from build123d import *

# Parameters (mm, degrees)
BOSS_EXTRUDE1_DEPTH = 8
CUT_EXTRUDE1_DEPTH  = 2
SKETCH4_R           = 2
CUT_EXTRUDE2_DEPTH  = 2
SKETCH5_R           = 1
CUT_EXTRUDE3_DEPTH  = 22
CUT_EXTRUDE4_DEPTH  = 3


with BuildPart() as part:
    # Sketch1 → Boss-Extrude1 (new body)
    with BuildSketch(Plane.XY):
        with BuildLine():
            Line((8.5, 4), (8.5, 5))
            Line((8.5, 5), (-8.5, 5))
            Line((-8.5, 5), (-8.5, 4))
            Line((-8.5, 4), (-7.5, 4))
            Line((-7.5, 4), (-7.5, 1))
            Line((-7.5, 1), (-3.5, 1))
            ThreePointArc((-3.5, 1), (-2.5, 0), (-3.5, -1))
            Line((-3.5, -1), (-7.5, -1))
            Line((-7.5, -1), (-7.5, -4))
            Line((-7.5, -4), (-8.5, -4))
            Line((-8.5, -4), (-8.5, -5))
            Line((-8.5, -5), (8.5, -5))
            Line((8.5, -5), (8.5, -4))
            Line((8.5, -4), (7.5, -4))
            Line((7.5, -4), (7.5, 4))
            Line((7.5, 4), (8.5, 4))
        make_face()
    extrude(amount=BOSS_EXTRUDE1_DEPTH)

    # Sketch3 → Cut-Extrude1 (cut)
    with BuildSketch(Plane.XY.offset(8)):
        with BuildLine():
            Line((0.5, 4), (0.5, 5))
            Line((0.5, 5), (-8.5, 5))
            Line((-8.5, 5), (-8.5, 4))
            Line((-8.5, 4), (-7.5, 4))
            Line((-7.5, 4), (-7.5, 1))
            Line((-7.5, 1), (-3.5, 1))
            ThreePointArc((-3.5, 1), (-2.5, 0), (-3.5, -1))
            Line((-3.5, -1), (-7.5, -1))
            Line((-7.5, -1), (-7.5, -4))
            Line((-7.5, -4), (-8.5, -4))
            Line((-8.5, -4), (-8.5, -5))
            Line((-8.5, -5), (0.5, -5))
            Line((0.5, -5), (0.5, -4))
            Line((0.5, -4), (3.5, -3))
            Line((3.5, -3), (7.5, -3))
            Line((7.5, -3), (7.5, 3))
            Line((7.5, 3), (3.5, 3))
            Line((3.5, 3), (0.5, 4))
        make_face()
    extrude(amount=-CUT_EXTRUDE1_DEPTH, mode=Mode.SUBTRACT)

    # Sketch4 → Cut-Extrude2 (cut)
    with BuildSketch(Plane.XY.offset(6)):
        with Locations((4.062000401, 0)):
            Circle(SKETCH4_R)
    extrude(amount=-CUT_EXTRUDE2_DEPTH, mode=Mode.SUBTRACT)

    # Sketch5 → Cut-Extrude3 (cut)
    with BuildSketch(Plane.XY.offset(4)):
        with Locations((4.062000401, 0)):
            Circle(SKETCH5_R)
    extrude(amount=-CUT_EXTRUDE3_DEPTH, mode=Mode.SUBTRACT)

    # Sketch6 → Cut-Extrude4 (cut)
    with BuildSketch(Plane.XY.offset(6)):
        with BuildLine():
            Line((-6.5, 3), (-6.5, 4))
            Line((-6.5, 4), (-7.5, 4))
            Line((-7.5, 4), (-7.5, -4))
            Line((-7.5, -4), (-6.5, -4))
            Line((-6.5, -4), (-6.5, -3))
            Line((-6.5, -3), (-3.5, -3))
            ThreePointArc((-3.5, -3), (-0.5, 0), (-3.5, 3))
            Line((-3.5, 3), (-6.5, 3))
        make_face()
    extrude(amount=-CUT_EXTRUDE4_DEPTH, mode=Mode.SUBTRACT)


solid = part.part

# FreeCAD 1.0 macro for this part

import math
import FreeCAD as App
import Part
import Sketcher

doc = App.newDocument("Part")
params = doc.addObject("Spreadsheet::Sheet", "Params")
for row, (alias, value) in enumerate([
    ("sketch1_radius", "1 mm"),
    ("sketch1_width", "17 mm"),
    ("sketch1_width2", "1 mm"),
    ("sketch1_width3", "4 mm"),
    ("sketch1_height", "3 mm"),
    ("pad1_length", "8 mm"),
    ("sketch2_radius", "1 mm"),
    ("sketch2_width", "9 mm"),
    ("sketch2_width2", "1 mm"),
    ("sketch2_width3", "4 mm"),
    ("sketch2_height", "3 mm"),
    ("pocket1_length", "2 mm"),
    ("sketch3_diameter", "4 mm"),
    ("pocket2_length", "2 mm"),
    ("sketch4_diameter", "2 mm"),
    ("pocket3_length", "22 mm"),
    ("sketch5_radius", "3 mm"),
    ("sketch5_width", "1 mm"),
    ("sketch5_width2", "3 mm"),
    ("pocket4_length", "3 mm"),
], start=1):
    params.set(f"A{row}", alias)
    params.set(f"B{row}", "=" + value)
    params.setAlias(f"B{row}", alias)

body = doc.addObject("PartDesign::Body", "Body")

# Sketch on XY plane
sketch1 = body.newObject("Sketcher::SketchObject", "Sketch")
sketch1.AttachmentSupport = (doc.getObject("XY_Plane"), [""])
sketch1.MapMode = "FlatFace"
sketch1.addGeometry(Part.LineSegment(App.Vector(8.5, 4, 0), App.Vector(8.5, 5, 0)), False)
sketch1.addGeometry(Part.LineSegment(App.Vector(8.5, 5, 0), App.Vector(-8.5, 5, 0)), False)
sketch1.addGeometry(Part.LineSegment(App.Vector(-8.5, 5, 0), App.Vector(-8.5, 4, 0)), False)
sketch1.addGeometry(Part.LineSegment(App.Vector(-8.5, 4, 0), App.Vector(-7.5, 4, 0)), False)
sketch1.addGeometry(Part.LineSegment(App.Vector(-7.5, 4, 0), App.Vector(-7.5, 1, 0)), False)
sketch1.addGeometry(Part.LineSegment(App.Vector(-7.5, 1, 0), App.Vector(-3.5, 1, 0)), False)
sketch1.addGeometry(Part.ArcOfCircle(Part.Circle(App.Vector(-3.5, 0, 0), App.Vector(0, 0, 1), 1), math.radians(-90), math.radians(90)), False)
sketch1.addGeometry(Part.LineSegment(App.Vector(-3.5, -1, 0), App.Vector(-7.5, -1, 0)), False)
sketch1.addGeometry(Part.LineSegment(App.Vector(-7.5, -1, 0), App.Vector(-7.5, -4, 0)), False)
sketch1.addGeometry(Part.LineSegment(App.Vector(-7.5, -4, 0), App.Vector(-8.5, -4, 0)), False)
sketch1.addGeometry(Part.LineSegment(App.Vector(-8.5, -4, 0), App.Vector(-8.5, -5, 0)), False)
sketch1.addGeometry(Part.LineSegment(App.Vector(-8.5, -5, 0), App.Vector(8.5, -5, 0)), False)
sketch1.addGeometry(Part.LineSegment(App.Vector(8.5, -5, 0), App.Vector(8.5, -4, 0)), False)
sketch1.addGeometry(Part.LineSegment(App.Vector(8.5, -4, 0), App.Vector(7.5, -4, 0)), False)
sketch1.addGeometry(Part.LineSegment(App.Vector(7.5, -4, 0), App.Vector(7.5, 4, 0)), False)
sketch1.addGeometry(Part.LineSegment(App.Vector(7.5, 4, 0), App.Vector(8.5, 4, 0)), False)
sketch1.addConstraint(Sketcher.Constraint("Coincident", 0, 2, 1, 1))
sketch1.addConstraint(Sketcher.Constraint("Coincident", 1, 2, 2, 1))
sketch1.addConstraint(Sketcher.Constraint("Coincident", 2, 2, 3, 1))
sketch1.addConstraint(Sketcher.Constraint("Coincident", 3, 2, 4, 1))
sketch1.addConstraint(Sketcher.Constraint("Coincident", 4, 2, 5, 1))
sketch1.addConstraint(Sketcher.Constraint("Tangent", 5, 2, 6, 2))
sketch1.addConstraint(Sketcher.Constraint("Tangent", 6, 1, 7, 1))
sketch1.addConstraint(Sketcher.Constraint("Coincident", 7, 2, 8, 1))
sketch1.addConstraint(Sketcher.Constraint("Coincident", 8, 2, 9, 1))
sketch1.addConstraint(Sketcher.Constraint("Coincident", 9, 2, 10, 1))
sketch1.addConstraint(Sketcher.Constraint("Coincident", 10, 2, 11, 1))
sketch1.addConstraint(Sketcher.Constraint("Coincident", 11, 2, 12, 1))
sketch1.addConstraint(Sketcher.Constraint("Coincident", 12, 2, 13, 1))
sketch1.addConstraint(Sketcher.Constraint("Coincident", 13, 2, 14, 1))
sketch1.addConstraint(Sketcher.Constraint("Coincident", 14, 2, 15, 1))
sketch1.addConstraint(Sketcher.Constraint("Coincident", 15, 2, 0, 1))
sketch1.addConstraint(Sketcher.Constraint("Vertical", 0))
sketch1.addConstraint(Sketcher.Constraint("Horizontal", 1))
sketch1.addConstraint(Sketcher.Constraint("Vertical", 2))
sketch1.addConstraint(Sketcher.Constraint("Horizontal", 3))
sketch1.addConstraint(Sketcher.Constraint("Vertical", 4))
sketch1.addConstraint(Sketcher.Constraint("Horizontal", 5))
sketch1.addConstraint(Sketcher.Constraint("Horizontal", 7))
sketch1.addConstraint(Sketcher.Constraint("Vertical", 8))
sketch1.addConstraint(Sketcher.Constraint("Horizontal", 9))
sketch1.addConstraint(Sketcher.Constraint("Vertical", 10))
sketch1.addConstraint(Sketcher.Constraint("Horizontal", 11))
sketch1.addConstraint(Sketcher.Constraint("Vertical", 12))
sketch1.addConstraint(Sketcher.Constraint("Horizontal", 13))
sketch1.addConstraint(Sketcher.Constraint("Vertical", 14))
sketch1.addConstraint(Sketcher.Constraint("Horizontal", 15))
sketch1.addConstraint(Sketcher.Constraint("Symmetric", 0, 2, 10, 2, -1, 1))
sketch1.addConstraint(Sketcher.Constraint("Symmetric", 2, 2, 12, 2, -1, 1))
sketch1.addConstraint(Sketcher.Constraint("Symmetric", 8, 2, 14, 2, -1, 1))
sketch1.addConstraint(Sketcher.Constraint("Symmetric", 9, 2, 12, 2, -2))
sketch1.addConstraint(Sketcher.Constraint("Symmetric", 4, 2, 7, 2, -1))
sketch1.addConstraint(Sketcher.Constraint("Equal", 15, 0))
sketch1.addConstraint(Sketcher.Constraint("Radius", 6, 1.0))
sketch1.addConstraint(Sketcher.Constraint("DistanceX", 1, 2, 1, 1, 17.0))
sketch1.addConstraint(Sketcher.Constraint("DistanceX", 3, 1, 3, 2, 1.0))
sketch1.addConstraint(Sketcher.Constraint("DistanceX", 5, 1, 5, 2, 4.0))
sketch1.addConstraint(Sketcher.Constraint("DistanceY", 4, 2, 4, 1, 3.0))
sketch1.setExpression("Constraints[37]", "Params.sketch1_radius")
sketch1.setExpression("Constraints[38]", "Params.sketch1_width")
sketch1.setExpression("Constraints[39]", "Params.sketch1_width2")
sketch1.setExpression("Constraints[40]", "Params.sketch1_width3")
sketch1.setExpression("Constraints[41]", "Params.sketch1_height")
pad1 = body.newObject("PartDesign::Pad", "Pad")
pad1.Profile = sketch1
pad1.setExpression("Length", "Params.pad1_length")

# Sketch on XY plane
sketch2 = body.newObject("Sketcher::SketchObject", "Sketch001")
sketch2.AttachmentSupport = (doc.getObject("XY_Plane"), [""])
sketch2.MapMode = "FlatFace"
sketch2.AttachmentOffset = App.Placement(App.Vector(0, 0, 8), App.Rotation())
sketch2.addGeometry(Part.LineSegment(App.Vector(0.5, 4, 0), App.Vector(0.5, 5, 0)), False)
sketch2.addGeometry(Part.LineSegment(App.Vector(0.5, 5, 0), App.Vector(-8.5, 5, 0)), False)
sketch2.addGeometry(Part.LineSegment(App.Vector(-8.5, 5, 0), App.Vector(-8.5, 4, 0)), False)
sketch2.addGeometry(Part.LineSegment(App.Vector(-8.5, 4, 0), App.Vector(-7.5, 4, 0)), False)
sketch2.addGeometry(Part.LineSegment(App.Vector(-7.5, 4, 0), App.Vector(-7.5, 1, 0)), False)
sketch2.addGeometry(Part.LineSegment(App.Vector(-7.5, 1, 0), App.Vector(-3.5, 1, 0)), False)
sketch2.addGeometry(Part.ArcOfCircle(Part.Circle(App.Vector(-3.5, 0, 0), App.Vector(0, 0, 1), 1), math.radians(-90), math.radians(90)), False)
sketch2.addGeometry(Part.LineSegment(App.Vector(-3.5, -1, 0), App.Vector(-7.5, -1, 0)), False)
sketch2.addGeometry(Part.LineSegment(App.Vector(-7.5, -1, 0), App.Vector(-7.5, -4, 0)), False)
sketch2.addGeometry(Part.LineSegment(App.Vector(-7.5, -4, 0), App.Vector(-8.5, -4, 0)), False)
sketch2.addGeometry(Part.LineSegment(App.Vector(-8.5, -4, 0), App.Vector(-8.5, -5, 0)), False)
sketch2.addGeometry(Part.LineSegment(App.Vector(-8.5, -5, 0), App.Vector(0.5, -5, 0)), False)
sketch2.addGeometry(Part.LineSegment(App.Vector(0.5, -5, 0), App.Vector(0.5, -4, 0)), False)
sketch2.addGeometry(Part.LineSegment(App.Vector(0.5, -4, 0), App.Vector(3.5, -3, 0)), False)
sketch2.addGeometry(Part.LineSegment(App.Vector(3.5, -3, 0), App.Vector(7.5, -3, 0)), False)
sketch2.addGeometry(Part.LineSegment(App.Vector(7.5, -3, 0), App.Vector(7.5, 3, 0)), False)
sketch2.addGeometry(Part.LineSegment(App.Vector(7.5, 3, 0), App.Vector(3.5, 3, 0)), False)
sketch2.addGeometry(Part.LineSegment(App.Vector(3.5, 3, 0), App.Vector(0.5, 4, 0)), False)
sketch2.addConstraint(Sketcher.Constraint("Coincident", 0, 2, 1, 1))
sketch2.addConstraint(Sketcher.Constraint("Coincident", 1, 2, 2, 1))
sketch2.addConstraint(Sketcher.Constraint("Coincident", 2, 2, 3, 1))
sketch2.addConstraint(Sketcher.Constraint("Coincident", 3, 2, 4, 1))
sketch2.addConstraint(Sketcher.Constraint("Coincident", 4, 2, 5, 1))
sketch2.addConstraint(Sketcher.Constraint("Tangent", 5, 2, 6, 2))
sketch2.addConstraint(Sketcher.Constraint("Tangent", 6, 1, 7, 1))
sketch2.addConstraint(Sketcher.Constraint("Coincident", 7, 2, 8, 1))
sketch2.addConstraint(Sketcher.Constraint("Coincident", 8, 2, 9, 1))
sketch2.addConstraint(Sketcher.Constraint("Coincident", 9, 2, 10, 1))
sketch2.addConstraint(Sketcher.Constraint("Coincident", 10, 2, 11, 1))
sketch2.addConstraint(Sketcher.Constraint("Coincident", 11, 2, 12, 1))
sketch2.addConstraint(Sketcher.Constraint("Coincident", 12, 2, 13, 1))
sketch2.addConstraint(Sketcher.Constraint("Coincident", 13, 2, 14, 1))
sketch2.addConstraint(Sketcher.Constraint("Coincident", 14, 2, 15, 1))
sketch2.addConstraint(Sketcher.Constraint("Coincident", 15, 2, 16, 1))
sketch2.addConstraint(Sketcher.Constraint("Coincident", 16, 2, 17, 1))
sketch2.addConstraint(Sketcher.Constraint("Coincident", 17, 2, 0, 1))
sketch2.addConstraint(Sketcher.Constraint("Vertical", 0))
sketch2.addConstraint(Sketcher.Constraint("Horizontal", 1))
sketch2.addConstraint(Sketcher.Constraint("Vertical", 2))
sketch2.addConstraint(Sketcher.Constraint("Horizontal", 3))
sketch2.addConstraint(Sketcher.Constraint("Vertical", 4))
sketch2.addConstraint(Sketcher.Constraint("Horizontal", 5))
sketch2.addConstraint(Sketcher.Constraint("Horizontal", 7))
sketch2.addConstraint(Sketcher.Constraint("Vertical", 8))
sketch2.addConstraint(Sketcher.Constraint("Horizontal", 9))
sketch2.addConstraint(Sketcher.Constraint("Vertical", 10))
sketch2.addConstraint(Sketcher.Constraint("Horizontal", 11))
sketch2.addConstraint(Sketcher.Constraint("Vertical", 12))
sketch2.addConstraint(Sketcher.Constraint("Horizontal", 14))
sketch2.addConstraint(Sketcher.Constraint("Vertical", 15))
sketch2.addConstraint(Sketcher.Constraint("Horizontal", 16))
sketch2.addConstraint(Sketcher.Constraint("Symmetric", 4, 2, 7, 2, -1))
sketch2.addConstraint(Sketcher.Constraint("Symmetric", 2, 2, 9, 2, -1))
sketch2.addConstraint(Sketcher.Constraint("Symmetric", 0, 2, 11, 2, -1))
sketch2.addConstraint(Sketcher.Constraint("Symmetric", 13, 2, 16, 2, -1))
sketch2.addConstraint(Sketcher.Constraint("Horizontal", 9, 2, 12, 2))
sketch2.addConstraint(Sketcher.Constraint("Horizontal", 3, 2, 17, 2))
sketch2.addConstraint(Sketcher.Constraint("Equal", 7, 14))
sketch2.addConstraint(Sketcher.Constraint("Equal", 9, 0))
sketch2.addConstraint(Sketcher.Constraint("Radius", 6, 1.0))
sketch2.addConstraint(Sketcher.Constraint("DistanceX", 1, 2, 1, 1, 9.0))
sketch2.addConstraint(Sketcher.Constraint("DistanceX", 3, 1, 3, 2, 1.0))
sketch2.addConstraint(Sketcher.Constraint("DistanceX", 5, 1, 5, 2, 4.0))
sketch2.addConstraint(Sketcher.Constraint("DistanceY", 4, 2, 4, 1, 3.0))
sketch2.addConstraint(Sketcher.Constraint("DistanceY", 15, 1, 15, 2, 6.0))
sketch2.addConstraint(Sketcher.Constraint("DistanceX", 12, 2, 13, 2, 3.0))
sketch2.addConstraint(Sketcher.Constraint("DistanceX", 6, 3, -1, 1, 3.5))
sketch2.setExpression("Constraints[41]", "Params.sketch2_radius")
sketch2.setExpression("Constraints[42]", "Params.sketch2_width")
sketch2.setExpression("Constraints[43]", "Params.sketch2_width2")
sketch2.setExpression("Constraints[44]", "Params.sketch2_width3")
sketch2.setExpression("Constraints[45]", "Params.sketch2_height")
pocket1 = body.newObject("PartDesign::Pocket", "Pocket")
pocket1.Profile = sketch2
pocket1.setExpression("Length", "Params.pocket1_length")

# Sketch on XY plane
sketch3 = body.newObject("Sketcher::SketchObject", "Sketch002")
sketch3.AttachmentSupport = (doc.getObject("XY_Plane"), [""])
sketch3.MapMode = "FlatFace"
sketch3.AttachmentOffset = App.Placement(App.Vector(0, 0, 6), App.Rotation())
sketch3.addGeometry(Part.Circle(App.Vector(4.062, 0, 0), App.Vector(0, 0, 1), 2), False)
sketch3.addConstraint(Sketcher.Constraint("PointOnObject", 0, 3, -1))
sketch3.addConstraint(Sketcher.Constraint("Diameter", 0, 4.0))
sketch3.addConstraint(Sketcher.Constraint("DistanceX", -1, 1, 0, 3, 4.062))
sketch3.setExpression("Constraints[1]", "Params.sketch3_diameter")
pocket2 = body.newObject("PartDesign::Pocket", "Pocket001")
pocket2.Profile = sketch3
pocket2.setExpression("Length", "Params.pocket2_length")

# Sketch on XY plane
sketch4 = body.newObject("Sketcher::SketchObject", "Sketch003")
sketch4.AttachmentSupport = (doc.getObject("XY_Plane"), [""])
sketch4.MapMode = "FlatFace"
sketch4.AttachmentOffset = App.Placement(App.Vector(0, 0, 4), App.Rotation())
sketch4.addGeometry(Part.Circle(App.Vector(4.062, 0, 0), App.Vector(0, 0, 1), 1), False)
sketch4.addConstraint(Sketcher.Constraint("PointOnObject", 0, 3, -1))
sketch4.addConstraint(Sketcher.Constraint("Diameter", 0, 2.0))
sketch4.addConstraint(Sketcher.Constraint("DistanceX", -1, 1, 0, 3, 4.062))
sketch4.setExpression("Constraints[1]", "Params.sketch4_diameter")
pocket3 = body.newObject("PartDesign::Pocket", "Pocket002")
pocket3.Profile = sketch4
pocket3.setExpression("Length", "Params.pocket3_length")

# Sketch on XY plane
sketch5 = body.newObject("Sketcher::SketchObject", "Sketch004")
sketch5.AttachmentSupport = (doc.getObject("XY_Plane"), [""])
sketch5.MapMode = "FlatFace"
sketch5.AttachmentOffset = App.Placement(App.Vector(0, 0, 6), App.Rotation())
sketch5.addGeometry(Part.LineSegment(App.Vector(-6.5, 3, 0), App.Vector(-6.5, 4, 0)), False)
sketch5.addGeometry(Part.LineSegment(App.Vector(-6.5, 4, 0), App.Vector(-7.5, 4, 0)), False)
sketch5.addGeometry(Part.LineSegment(App.Vector(-7.5, 4, 0), App.Vector(-7.5, -4, 0)), False)
sketch5.addGeometry(Part.LineSegment(App.Vector(-7.5, -4, 0), App.Vector(-6.5, -4, 0)), False)
sketch5.addGeometry(Part.LineSegment(App.Vector(-6.5, -4, 0), App.Vector(-6.5, -3, 0)), False)
sketch5.addGeometry(Part.LineSegment(App.Vector(-6.5, -3, 0), App.Vector(-3.5, -3, 0)), False)
sketch5.addGeometry(Part.ArcOfCircle(Part.Circle(App.Vector(-3.5, 0, 0), App.Vector(0, 0, 1), 3), math.radians(-90), math.radians(90)), False)
sketch5.addGeometry(Part.LineSegment(App.Vector(-3.5, 3, 0), App.Vector(-6.5, 3, 0)), False)
sketch5.addConstraint(Sketcher.Constraint("Coincident", 0, 2, 1, 1))
sketch5.addConstraint(Sketcher.Constraint("Coincident", 1, 2, 2, 1))
sketch5.addConstraint(Sketcher.Constraint("Coincident", 2, 2, 3, 1))
sketch5.addConstraint(Sketcher.Constraint("Coincident", 3, 2, 4, 1))
sketch5.addConstraint(Sketcher.Constraint("Coincident", 4, 2, 5, 1))
sketch5.addConstraint(Sketcher.Constraint("Tangent", 5, 2, 6, 1))
sketch5.addConstraint(Sketcher.Constraint("Tangent", 6, 2, 7, 1))
sketch5.addConstraint(Sketcher.Constraint("Coincident", 7, 2, 0, 1))
sketch5.addConstraint(Sketcher.Constraint("Vertical", 0))
sketch5.addConstraint(Sketcher.Constraint("Horizontal", 1))
sketch5.addConstraint(Sketcher.Constraint("Vertical", 2))
sketch5.addConstraint(Sketcher.Constraint("Horizontal", 3))
sketch5.addConstraint(Sketcher.Constraint("Vertical", 4))
sketch5.addConstraint(Sketcher.Constraint("Horizontal", 5))
sketch5.addConstraint(Sketcher.Constraint("Horizontal", 7))
sketch5.addConstraint(Sketcher.Constraint("Symmetric", 0, 2, 3, 2, -1))
sketch5.addConstraint(Sketcher.Constraint("PointOnObject", 6, 3, -1))
sketch5.addConstraint(Sketcher.Constraint("Equal", 3, 0))
sketch5.addConstraint(Sketcher.Constraint("Radius", 6, 3.0))
sketch5.addConstraint(Sketcher.Constraint("DistanceX", 1, 2, 1, 1, 1.0))
sketch5.addConstraint(Sketcher.Constraint("DistanceX", 5, 1, 5, 2, 3.0))
sketch5.addConstraint(Sketcher.Constraint("DistanceX", 6, 3, -1, 1, 3.5))
sketch5.setExpression("Constraints[18]", "Params.sketch5_radius")
sketch5.setExpression("Constraints[19]", "Params.sketch5_width")
sketch5.setExpression("Constraints[20]", "Params.sketch5_width2")
pocket4 = body.newObject("PartDesign::Pocket", "Pocket003")
pocket4.Profile = sketch5
pocket4.setExpression("Length", "Params.pocket4_length")

doc.recompute()
